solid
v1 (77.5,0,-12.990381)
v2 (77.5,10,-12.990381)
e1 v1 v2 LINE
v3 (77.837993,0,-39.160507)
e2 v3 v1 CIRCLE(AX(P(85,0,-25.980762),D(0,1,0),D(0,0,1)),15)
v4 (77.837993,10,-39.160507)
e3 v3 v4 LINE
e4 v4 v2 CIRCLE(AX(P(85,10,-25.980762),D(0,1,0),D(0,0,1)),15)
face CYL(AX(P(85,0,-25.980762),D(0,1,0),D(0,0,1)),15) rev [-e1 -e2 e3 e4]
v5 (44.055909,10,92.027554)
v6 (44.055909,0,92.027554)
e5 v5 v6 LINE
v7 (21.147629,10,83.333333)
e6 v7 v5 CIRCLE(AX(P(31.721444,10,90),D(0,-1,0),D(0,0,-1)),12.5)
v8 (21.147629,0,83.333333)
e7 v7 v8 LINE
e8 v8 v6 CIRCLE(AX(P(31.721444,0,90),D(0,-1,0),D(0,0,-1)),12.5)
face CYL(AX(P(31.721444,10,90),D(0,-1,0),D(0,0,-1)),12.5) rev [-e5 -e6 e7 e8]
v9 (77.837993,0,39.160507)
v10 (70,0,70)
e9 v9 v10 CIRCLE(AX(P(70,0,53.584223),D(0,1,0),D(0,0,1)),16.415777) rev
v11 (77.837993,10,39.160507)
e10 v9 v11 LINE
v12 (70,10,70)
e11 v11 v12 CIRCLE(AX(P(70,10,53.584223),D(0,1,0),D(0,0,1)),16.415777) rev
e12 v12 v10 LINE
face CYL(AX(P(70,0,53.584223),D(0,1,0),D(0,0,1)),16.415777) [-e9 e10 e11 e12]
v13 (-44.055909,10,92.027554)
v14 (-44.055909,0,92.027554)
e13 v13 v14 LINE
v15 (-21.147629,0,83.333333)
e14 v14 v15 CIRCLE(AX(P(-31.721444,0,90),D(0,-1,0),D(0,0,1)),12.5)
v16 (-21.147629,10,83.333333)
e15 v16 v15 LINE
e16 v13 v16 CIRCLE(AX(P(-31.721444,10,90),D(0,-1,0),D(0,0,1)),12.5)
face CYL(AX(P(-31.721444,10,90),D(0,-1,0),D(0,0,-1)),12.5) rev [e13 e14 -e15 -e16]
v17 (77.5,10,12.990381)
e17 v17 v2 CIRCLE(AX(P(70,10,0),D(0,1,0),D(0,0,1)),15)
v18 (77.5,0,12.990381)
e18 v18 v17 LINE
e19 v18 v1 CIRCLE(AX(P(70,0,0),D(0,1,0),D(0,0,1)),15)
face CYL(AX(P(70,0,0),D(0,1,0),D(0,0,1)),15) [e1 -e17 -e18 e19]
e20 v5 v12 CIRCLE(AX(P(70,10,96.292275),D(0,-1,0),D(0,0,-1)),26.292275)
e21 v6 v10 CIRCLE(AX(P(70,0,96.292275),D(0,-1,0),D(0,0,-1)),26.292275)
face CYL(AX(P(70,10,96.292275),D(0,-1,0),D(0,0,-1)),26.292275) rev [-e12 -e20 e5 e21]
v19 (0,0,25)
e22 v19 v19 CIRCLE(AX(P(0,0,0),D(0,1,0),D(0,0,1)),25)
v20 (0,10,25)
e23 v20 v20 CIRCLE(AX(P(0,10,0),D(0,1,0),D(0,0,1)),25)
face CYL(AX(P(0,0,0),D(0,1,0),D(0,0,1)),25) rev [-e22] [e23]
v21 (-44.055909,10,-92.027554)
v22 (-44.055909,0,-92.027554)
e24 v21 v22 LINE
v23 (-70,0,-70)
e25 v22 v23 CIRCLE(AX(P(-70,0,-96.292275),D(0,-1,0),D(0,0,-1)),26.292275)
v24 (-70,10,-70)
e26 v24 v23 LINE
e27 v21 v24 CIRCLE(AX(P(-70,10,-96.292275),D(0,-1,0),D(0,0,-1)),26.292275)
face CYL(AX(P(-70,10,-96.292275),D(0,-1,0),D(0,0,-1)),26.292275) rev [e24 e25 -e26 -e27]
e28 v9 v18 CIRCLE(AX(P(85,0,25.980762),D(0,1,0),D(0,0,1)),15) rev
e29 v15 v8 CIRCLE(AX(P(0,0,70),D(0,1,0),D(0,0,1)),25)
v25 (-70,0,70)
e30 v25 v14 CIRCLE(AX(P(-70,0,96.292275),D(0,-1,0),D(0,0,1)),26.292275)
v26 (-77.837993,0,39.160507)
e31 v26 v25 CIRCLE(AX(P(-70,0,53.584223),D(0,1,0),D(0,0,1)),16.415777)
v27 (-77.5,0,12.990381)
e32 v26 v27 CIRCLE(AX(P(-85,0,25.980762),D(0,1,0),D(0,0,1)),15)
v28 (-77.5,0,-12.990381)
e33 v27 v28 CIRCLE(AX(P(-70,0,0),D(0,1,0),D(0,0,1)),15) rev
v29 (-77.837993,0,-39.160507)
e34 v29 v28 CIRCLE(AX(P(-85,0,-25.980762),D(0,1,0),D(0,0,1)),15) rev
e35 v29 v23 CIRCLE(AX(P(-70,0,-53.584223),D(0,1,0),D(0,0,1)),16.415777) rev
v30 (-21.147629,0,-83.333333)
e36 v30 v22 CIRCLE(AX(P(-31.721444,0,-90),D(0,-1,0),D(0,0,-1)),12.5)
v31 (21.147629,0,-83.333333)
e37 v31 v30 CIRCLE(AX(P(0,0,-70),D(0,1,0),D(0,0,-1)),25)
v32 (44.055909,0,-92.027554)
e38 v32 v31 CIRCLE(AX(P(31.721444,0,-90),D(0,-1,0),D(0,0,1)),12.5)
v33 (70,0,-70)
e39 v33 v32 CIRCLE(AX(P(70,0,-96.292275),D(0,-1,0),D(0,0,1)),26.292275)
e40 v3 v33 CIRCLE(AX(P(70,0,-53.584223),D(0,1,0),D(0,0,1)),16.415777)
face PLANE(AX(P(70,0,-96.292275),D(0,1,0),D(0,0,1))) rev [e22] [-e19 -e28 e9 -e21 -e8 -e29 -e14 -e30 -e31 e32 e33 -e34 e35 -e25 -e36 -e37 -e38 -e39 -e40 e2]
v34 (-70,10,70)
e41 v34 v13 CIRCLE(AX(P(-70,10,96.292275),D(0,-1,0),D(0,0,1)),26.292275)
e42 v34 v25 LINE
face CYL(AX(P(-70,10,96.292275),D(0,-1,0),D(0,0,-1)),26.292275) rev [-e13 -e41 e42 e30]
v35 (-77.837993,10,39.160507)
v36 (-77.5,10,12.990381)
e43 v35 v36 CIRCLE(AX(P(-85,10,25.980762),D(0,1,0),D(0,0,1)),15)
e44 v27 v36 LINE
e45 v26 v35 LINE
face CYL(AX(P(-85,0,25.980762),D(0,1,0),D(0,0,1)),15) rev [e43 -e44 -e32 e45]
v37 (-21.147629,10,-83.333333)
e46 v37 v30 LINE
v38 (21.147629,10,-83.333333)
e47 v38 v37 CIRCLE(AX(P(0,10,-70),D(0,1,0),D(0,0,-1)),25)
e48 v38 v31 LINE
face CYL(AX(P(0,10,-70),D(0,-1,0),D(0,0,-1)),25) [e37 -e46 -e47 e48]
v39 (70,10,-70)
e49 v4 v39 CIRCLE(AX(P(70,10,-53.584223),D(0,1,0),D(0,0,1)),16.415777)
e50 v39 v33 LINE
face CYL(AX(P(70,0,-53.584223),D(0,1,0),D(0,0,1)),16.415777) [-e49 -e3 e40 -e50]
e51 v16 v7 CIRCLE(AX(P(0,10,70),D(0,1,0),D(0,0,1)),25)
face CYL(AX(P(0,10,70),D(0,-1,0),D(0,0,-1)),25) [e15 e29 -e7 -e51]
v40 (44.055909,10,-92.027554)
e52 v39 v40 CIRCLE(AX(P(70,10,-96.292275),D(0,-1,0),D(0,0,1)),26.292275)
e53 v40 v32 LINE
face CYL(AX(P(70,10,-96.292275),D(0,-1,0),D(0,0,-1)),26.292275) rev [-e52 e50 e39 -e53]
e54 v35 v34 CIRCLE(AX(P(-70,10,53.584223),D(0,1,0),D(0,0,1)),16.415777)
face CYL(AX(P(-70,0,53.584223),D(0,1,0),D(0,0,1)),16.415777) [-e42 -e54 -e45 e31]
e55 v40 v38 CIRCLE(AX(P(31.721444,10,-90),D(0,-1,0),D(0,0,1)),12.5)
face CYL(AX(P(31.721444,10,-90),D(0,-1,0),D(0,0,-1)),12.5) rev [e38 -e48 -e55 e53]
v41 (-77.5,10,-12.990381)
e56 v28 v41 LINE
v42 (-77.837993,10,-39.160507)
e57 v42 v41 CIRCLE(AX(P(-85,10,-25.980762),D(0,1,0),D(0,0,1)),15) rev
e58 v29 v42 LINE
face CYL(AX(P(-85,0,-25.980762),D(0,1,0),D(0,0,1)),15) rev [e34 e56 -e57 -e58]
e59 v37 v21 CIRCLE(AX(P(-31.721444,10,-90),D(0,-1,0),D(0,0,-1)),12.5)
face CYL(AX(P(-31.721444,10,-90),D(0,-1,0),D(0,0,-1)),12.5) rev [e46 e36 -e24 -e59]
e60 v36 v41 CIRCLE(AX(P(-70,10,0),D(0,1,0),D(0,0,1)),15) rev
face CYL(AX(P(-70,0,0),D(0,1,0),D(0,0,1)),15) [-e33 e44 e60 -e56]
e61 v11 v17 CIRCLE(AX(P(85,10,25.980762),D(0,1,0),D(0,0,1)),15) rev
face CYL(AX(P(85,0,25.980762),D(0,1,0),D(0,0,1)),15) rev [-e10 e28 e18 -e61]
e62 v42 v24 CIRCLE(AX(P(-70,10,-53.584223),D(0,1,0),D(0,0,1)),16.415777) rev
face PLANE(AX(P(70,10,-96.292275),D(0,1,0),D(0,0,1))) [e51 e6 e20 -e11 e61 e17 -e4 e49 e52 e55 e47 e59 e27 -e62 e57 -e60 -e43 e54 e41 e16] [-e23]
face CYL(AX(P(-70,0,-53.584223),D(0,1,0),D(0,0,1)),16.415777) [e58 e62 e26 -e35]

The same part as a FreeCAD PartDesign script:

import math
import FreeCAD as App
import Part
import Sketcher

V = App.Vector
Q = App.Units.Quantity

doc = App.newDocument("Part")
body = doc.addObject("PartDesign::Body", "Body")

# Sketch on XZ plane
sketch1 = doc.addObject("Sketcher::SketchObject", "Sketch")
body.addObject(sketch1)
sketch1.AttachmentSupport = (doc.XZ_Plane, [""])
sketch1.MapMode = "FlatFace"
sketch1.addGeometry(Part.LineSegment(V(-70, -70, 0), V(-70, 70, 0)), False)
sketch1.addGeometry(Part.ArcOfCircle(Part.Circle(V(-70, 96, 0), V(0, 0, 1), 26), math.radians(-90), math.radians(-9)), False)
sketch1.addGeometry(Part.ArcOfCircle(Part.Circle(V(-32, 90, 0), V(0, 0, 1), 12), math.radians(171), math.radians(328)), False)
sketch1.addGeometry(Part.ArcOfCircle(Part.Circle(V(0, 70, 0), V(0, 0, 1), 25), math.radians(32), math.radians(148)), False)
sketch1.addGeometry(Part.ArcOfCircle(Part.Circle(V(32, 90, 0), V(0, 0, 1), 12), math.radians(-148), math.radians(9)), False)
sketch1.addGeometry(Part.ArcOfCircle(Part.Circle(V(70, 96, 0), V(0, 0, 1), 26), math.radians(-171), math.radians(-90)), False)
sketch1.addGeometry(Part.LineSegment(V(70, 70, 0), V(70, -70, 0)), False)
sketch1.addGeometry(Part.ArcOfCircle(Part.Circle(V(70, -96, 0), V(0, 0, 1), 26), math.radians(90), math.radians(171)), False)
sketch1.addGeometry(Part.ArcOfCircle(Part.Circle(V(32, -90, 0), V(0, 0, 1), 12), math.radians(-9), math.radians(148)), False)
sketch1.addGeometry(Part.ArcOfCircle(Part.Circle(V(0, -70, 0), V(0, 0, 1), 25), math.radians(-148), math.radians(-32)), False)
sketch1.addGeometry(Part.ArcOfCircle(Part.Circle(V(-32, -90, 0), V(0, 0, 1), 12), math.radians(32), math.radians(189)), False)
sketch1.addGeometry(Part.ArcOfCircle(Part.Circle(V(-70, -96, 0), V(0, 0, 1), 26), math.radians(9), math.radians(90)), False)
sketch1.addConstraint(Sketcher.Constraint("Coincident", 0, 2, 1, 1))
sketch1.addConstraint(Sketcher.Constraint("Tangent", 1, 2, 2, 1))
sketch1.addConstraint(Sketcher.Constraint("Tangent", 2, 2, 3, 2))
sketch1.addConstraint(Sketcher.Constraint("Tangent", 3, 1, 4, 1))
sketch1.addConstraint(Sketcher.Constraint("Tangent", 4, 2, 5, 1))
sketch1.addConstraint(Sketcher.Constraint("Coincident", 5, 2, 6, 1))
sketch1.addConstraint(Sketcher.Constraint("Coincident", 6, 2, 7, 1))
sketch1.addConstraint(Sketcher.Constraint("Tangent", 7, 2, 8, 1))
sketch1.addConstraint(Sketcher.Constraint("Tangent", 8, 2, 9, 2))
sketch1.addConstraint(Sketcher.Constraint("Tangent", 9, 1, 10, 1))
sketch1.addConstraint(Sketcher.Constraint("Tangent", 10, 2, 11, 1))
sketch1.addConstraint(Sketcher.Constraint("Coincident", 11, 2, 0, 1))
sketch1.addConstraint(Sketcher.Constraint("Vertical", 0))
sketch1.addConstraint(Sketcher.Constraint("Vertical", 6))
sketch1.addConstraint(Sketcher.Constraint("Equal", 2, 4))
sketch1.addConstraint(Sketcher.Constraint("Equal", 1, 5))
sketch1.addConstraint(Sketcher.Constraint("Equal", 5, 7))
sketch1.addConstraint(Sketcher.Constraint("Equal", 4, 8))
sketch1.addConstraint(Sketcher.Constraint("Equal", 3, 9))
sketch1.addConstraint(Sketcher.Constraint("Equal", 8, 10))
sketch1.addConstraint(Sketcher.Constraint("Equal", 7, 11))
sketch1.addConstraint(Sketcher.Constraint("Symmetric", 1, 3, 7, 3, -1, 1))
sketch1.addConstraint(Sketcher.Constraint("Symmetric", 3, 3, 9, 3, -1, 1))
sketch1.addConstraint(Sketcher.Constraint("Symmetric", 5, 3, 11, 3, -1, 1))
sketch1.addConstraint(Sketcher.Constraint("Symmetric", 2, 3, 4, 3, -2))
sketch1.addConstraint(Sketcher.Constraint("Symmetric", 0, 2, 5, 2, -2))
sketch1.addConstraint(Sketcher.Constraint("Horizontal", 3, 3, 0, 2))
sketch1.addConstraint(Sketcher.Constraint("Vertical", 11, 3, 0, 2))
sketch1.addConstraint(Sketcher.Constraint("Radius", 3, Q("25 mm")))
sketch1.addConstraint(Sketcher.Constraint("Radius", 2, Q("12.5 mm")))
sketch1.addConstraint(Sketcher.Constraint("DistanceY", 0, 1, 0, 2, Q("140 mm")))
sketch1.addConstraint(Sketcher.Constraint("DistanceX", 1, 3, -1, 1, Q("70 mm")))
sketch1.addConstraint(Sketcher.Constraint("DistanceY", -1, 1, 2, 3, Q("90 mm")))
pad1 = doc.addObject("PartDesign::Pad", "Pad")
body.addObject(pad1)
pad1.Profile = sketch1
pad1.Length = 10
pad1.Reversed = True

# Sketch on XZ plane
sketch2 = doc.addObject("Sketcher::SketchObject", "Sketch001")
body.addObject(sketch2)
sketch2.AttachmentSupport = (doc.XZ_Plane, [""])
sketch2.MapMode = "FlatFace"
sketch2.AttachmentOffset = App.Placement(V(0, 0, -10), App.Rotation())
sketch2.addGeometry(Part.LineSegment(V(-70, -26, 0), V(-70, -70, 0)), False)
sketch2.addGeometry(Part.ArcOfCircle(Part.Circle(V(-70, -54, 0), V(0, 0, 1), 16), math.radians(119), math.radians(270)), False)
sketch2.addGeometry(Part.ArcOfCircle(Part.Circle(V(-85, -26, 0), V(0, 0, 1), 15), math.radians(-61), math.radians(0)), False)
sketch2.addGeometry(Part.ArcOfCircle(Part.Circle(V(70, -54, 0), V(0, 0, 1), 16), math.radians(-90), math.radians(61)), False)
sketch2.addGeometry(Part.LineSegment(V(70, -70, 0), V(70, -26, 0)), False)
sketch2.addGeometry(Part.ArcOfCircle(Part.Circle(V(85, -26, 0), V(0, 0, 1), 15), math.radians(-180), math.radians(-119)), False)
sketch2.addGeometry(Part.ArcOfCircle(Part.Circle(V(85, -26, 0), V(0, 0, 1), 15), math.radians(120), math.radians(180)), False)
sketch2.addGeometry(Part.LineSegment(V(70, -26, 0), V(70, 26, 0)), False)
sketch2.addGeometry(Part.ArcOfCircle(Part.Circle(V(85, 26, 0), V(0, 0, 1), 15), math.radians(180), math.radians(240)), False)
sketch2.addGeometry(Part.ArcOfCircle(Part.Circle(V(70, 0, 0), V(0, 0, 1), 15), math.radians(-60), math.radians(60)), False)
sketch2.addGeometry(Part.LineSegment(V(-70, 26, 0), V(-70, -26, 0)), False)
sketch2.addGeometry(Part.ArcOfCircle(Part.Circle(V(-85, -26, 0), V(0, 0, 1), 15), math.radians(0), math.radians(60)), False)
sketch2.addGeometry(Part.ArcOfCircle(Part.Circle(V(-70, 0, 0), V(0, 0, 1), 15), math.radians(120), math.radians(240)), False)
sketch2.addGeometry(Part.ArcOfCircle(Part.Circle(V(-85, 26, 0), V(0, 0, 1), 15), math.radians(-60), math.radians(0)), False)
sketch2.addGeometry(Part.LineSegment(V(-70, 70, 0), V(-70, 26, 0)), False)
sketch2.addGeometry(Part.ArcOfCircle(Part.Circle(V(-85, 26, 0), V(0, 0, 1), 15), math.radians(0), math.radians(61)), False)
sketch2.addGeometry(Part.ArcOfCircle(Part.Circle(V(-70, 54, 0), V(0, 0, 1), 16), math.radians(90), math.radians(241)), False)
sketch2.addGeometry(Part.ArcOfCircle(Part.Circle(V(85, 26, 0), V(0, 0, 1), 15), math.radians(119), math.radians(180)), False)
sketch2.addGeometry(Part.LineSegment(V(70, 26, 0), V(70, 70, 0)), False)
sketch2.addGeometry(Part.ArcOfCircle(Part.Circle(V(70, 54, 0), V(0, 0, 1), 16), math.radians(-61), math.radians(90)), False)
sketch2.addConstraint(Sketcher.Constraint("Coincident", 0, 2, 1, 2))
sketch2.addConstraint(Sketcher.Constraint("Tangent", 1, 1, 2, 1))
sketch2.addConstraint(Sketcher.Constraint("Tangent", 2, 2, 0, 1))
sketch2.addConstraint(Sketcher.Constraint("Coincident", 3, 1, 4, 1))
sketch2.addConstraint(Sketcher.Constraint("Tangent", 4, 2, 5, 1))
sketch2.addConstraint(Sketcher.Constraint("Tangent", 5, 2, 3, 2))
sketch2.addConstraint(Sketcher.Constraint("Tangent", 6, 2, 7, 1))
sketch2.addConstraint(Sketcher.Constraint("Tangent", 7, 2, 8, 1))
sketch2.addConstraint(Sketcher.Constraint("Tangent", 8, 2, 9, 2))
sketch2.addConstraint(Sketcher.Constraint("Tangent", 9, 1, 6, 1))
sketch2.addConstraint(Sketcher.Constraint("Tangent", 10, 2, 11, 1))
sketch2.addConstraint(Sketcher.Constraint("Tangent", 11, 2, 12, 2))
sketch2.addConstraint(Sketcher.Constraint("Tangent", 12, 1, 13, 1))
sketch2.addConstraint(Sketcher.Constraint("Tangent", 13, 2, 10, 1))
sketch2.addConstraint(Sketcher.Constraint("Tangent", 14, 2, 15, 1))
sketch2.addConstraint(Sketcher.Constraint("Tangent", 15, 2, 16, 2))
sketch2.addConstraint(Sketcher.Constraint("Coincident", 16, 1, 14, 1))
sketch2.addConstraint(Sketcher.Constraint("Tangent", 17, 2, 18, 1))
sketch2.addConstraint(Sketcher.Constraint("Coincident", 18, 2, 19, 2))
sketch2.addConstraint(Sketcher.Constraint("Tangent", 19, 1, 17, 1))
sketch2.addConstraint(Sketcher.Constraint("Vertical", 0))
sketch2.addConstraint(Sketcher.Constraint("Vertical", 4))
sketch2.addConstraint(Sketcher.Constraint("Vertical", 7))
sketch2.addConstraint(Sketcher.Constraint("Vertical", 10))
sketch2.addConstraint(Sketcher.Constraint("Vertical", 14))
sketch2.addConstraint(Sketcher.Constraint("Vertical", 18))
sketch2.addConstraint(Sketcher.Constraint("Coincident", 6, 3, 5, 3))
sketch2.addConstraint(Sketcher.Constraint("Coincident", 11, 3, 2, 3))
sketch2.addConstraint(Sketcher.Constraint("Coincident", 15, 3, 13, 3))
sketch2.addConstraint(Sketcher.Constraint("Coincident", 17, 3, 8, 3))
sketch2.addConstraint(Sketcher.Constraint("Equal", 1, 3))
sketch2.addConstraint(Sketcher.Constraint("Equal", 2, 5))
sketch2.addConstraint(Sketcher.Constraint("Equal", 5, 6))
sketch2.addConstraint(Sketcher.Constraint("Equal", 6, 8))
sketch2.addConstraint(Sketcher.Constraint("Equal", 8, 9))
sketch2.addConstraint(Sketcher.Constraint("Equal", 9, 11))
sketch2.addConstraint(Sketcher.Constraint("Equal", 11, 12))
sketch2.addConstraint(Sketcher.Constraint("Equal", 12, 13))
sketch2.addConstraint(Sketcher.Constraint("Equal", 13, 15))
sketch2.addConstraint(Sketcher.Constraint("Equal", 3, 16))
sketch2.addConstraint(Sketcher.Constraint("Equal", 15, 17))
sketch2.addConstraint(Sketcher.Constraint("Equal", 16, 19))
sketch2.addConstraint(Sketcher.Constraint("Symmetric", 2, 3, 8, 3, -1, 1))
sketch2.addConstraint(Sketcher.Constraint("Symmetric", 3, 3, 16, 3, -1, 1))
sketch2.addConstraint(Sketcher.Constraint("Symmetric", 1, 3, 3, 3, -2))
sketch2.addConstraint(Sketcher.Constraint("Horizontal", 16, 3, 19, 3))
sketch2.addConstraint(Sketcher.Constraint("Vertical", 3, 3, 9, 3))
sketch2.addConstraint(Sketcher.Constraint("Vertical", 16, 3, 0, 2))
sketch2.addConstraint(Sketcher.Constraint("Radius", 2, Q("15 mm")))
sketch2.addConstraint(Sketcher.Constraint("DistanceX", 1, 3, -1, 1, Q("70 mm")))
sketch2.addConstraint(Sketcher.Constraint("DistanceY", 0, 2, -1, 1, Q("70 mm")))
pad2 = doc.addObject("PartDesign::Pad", "Pad001")
body.addObject(pad2)
pad2.Profile = sketch2
pad2.Length = 10

# Sketch on XZ plane
sketch3 = doc.addObject("Sketcher::SketchObject", "Sketch002")
body.addObject(sketch3)
sketch3.AttachmentSupport = (doc.XZ_Plane, [""])
sketch3.MapMode = "FlatFace"
sketch3.AttachmentOffset = App.Placement(V(0, 0, -10), App.Rotation())
sketch3.addGeometry(Part.Circle(V(0, 0, 0), V(0, 0, 1), 25), False)
sketch3.addConstraint(Sketcher.Constraint("Coincident", 0, 3, -1, 1))
sketch3.addConstraint(Sketcher.Constraint("Diameter", 0, Q("50 mm")))
pocket1 = doc.addObject("PartDesign::Pocket", "Pocket")
body.addObject(pocket1)
pocket1.Profile = sketch3
pocket1.Length = 10
pocket1.Reversed = True

doc.recompute()
